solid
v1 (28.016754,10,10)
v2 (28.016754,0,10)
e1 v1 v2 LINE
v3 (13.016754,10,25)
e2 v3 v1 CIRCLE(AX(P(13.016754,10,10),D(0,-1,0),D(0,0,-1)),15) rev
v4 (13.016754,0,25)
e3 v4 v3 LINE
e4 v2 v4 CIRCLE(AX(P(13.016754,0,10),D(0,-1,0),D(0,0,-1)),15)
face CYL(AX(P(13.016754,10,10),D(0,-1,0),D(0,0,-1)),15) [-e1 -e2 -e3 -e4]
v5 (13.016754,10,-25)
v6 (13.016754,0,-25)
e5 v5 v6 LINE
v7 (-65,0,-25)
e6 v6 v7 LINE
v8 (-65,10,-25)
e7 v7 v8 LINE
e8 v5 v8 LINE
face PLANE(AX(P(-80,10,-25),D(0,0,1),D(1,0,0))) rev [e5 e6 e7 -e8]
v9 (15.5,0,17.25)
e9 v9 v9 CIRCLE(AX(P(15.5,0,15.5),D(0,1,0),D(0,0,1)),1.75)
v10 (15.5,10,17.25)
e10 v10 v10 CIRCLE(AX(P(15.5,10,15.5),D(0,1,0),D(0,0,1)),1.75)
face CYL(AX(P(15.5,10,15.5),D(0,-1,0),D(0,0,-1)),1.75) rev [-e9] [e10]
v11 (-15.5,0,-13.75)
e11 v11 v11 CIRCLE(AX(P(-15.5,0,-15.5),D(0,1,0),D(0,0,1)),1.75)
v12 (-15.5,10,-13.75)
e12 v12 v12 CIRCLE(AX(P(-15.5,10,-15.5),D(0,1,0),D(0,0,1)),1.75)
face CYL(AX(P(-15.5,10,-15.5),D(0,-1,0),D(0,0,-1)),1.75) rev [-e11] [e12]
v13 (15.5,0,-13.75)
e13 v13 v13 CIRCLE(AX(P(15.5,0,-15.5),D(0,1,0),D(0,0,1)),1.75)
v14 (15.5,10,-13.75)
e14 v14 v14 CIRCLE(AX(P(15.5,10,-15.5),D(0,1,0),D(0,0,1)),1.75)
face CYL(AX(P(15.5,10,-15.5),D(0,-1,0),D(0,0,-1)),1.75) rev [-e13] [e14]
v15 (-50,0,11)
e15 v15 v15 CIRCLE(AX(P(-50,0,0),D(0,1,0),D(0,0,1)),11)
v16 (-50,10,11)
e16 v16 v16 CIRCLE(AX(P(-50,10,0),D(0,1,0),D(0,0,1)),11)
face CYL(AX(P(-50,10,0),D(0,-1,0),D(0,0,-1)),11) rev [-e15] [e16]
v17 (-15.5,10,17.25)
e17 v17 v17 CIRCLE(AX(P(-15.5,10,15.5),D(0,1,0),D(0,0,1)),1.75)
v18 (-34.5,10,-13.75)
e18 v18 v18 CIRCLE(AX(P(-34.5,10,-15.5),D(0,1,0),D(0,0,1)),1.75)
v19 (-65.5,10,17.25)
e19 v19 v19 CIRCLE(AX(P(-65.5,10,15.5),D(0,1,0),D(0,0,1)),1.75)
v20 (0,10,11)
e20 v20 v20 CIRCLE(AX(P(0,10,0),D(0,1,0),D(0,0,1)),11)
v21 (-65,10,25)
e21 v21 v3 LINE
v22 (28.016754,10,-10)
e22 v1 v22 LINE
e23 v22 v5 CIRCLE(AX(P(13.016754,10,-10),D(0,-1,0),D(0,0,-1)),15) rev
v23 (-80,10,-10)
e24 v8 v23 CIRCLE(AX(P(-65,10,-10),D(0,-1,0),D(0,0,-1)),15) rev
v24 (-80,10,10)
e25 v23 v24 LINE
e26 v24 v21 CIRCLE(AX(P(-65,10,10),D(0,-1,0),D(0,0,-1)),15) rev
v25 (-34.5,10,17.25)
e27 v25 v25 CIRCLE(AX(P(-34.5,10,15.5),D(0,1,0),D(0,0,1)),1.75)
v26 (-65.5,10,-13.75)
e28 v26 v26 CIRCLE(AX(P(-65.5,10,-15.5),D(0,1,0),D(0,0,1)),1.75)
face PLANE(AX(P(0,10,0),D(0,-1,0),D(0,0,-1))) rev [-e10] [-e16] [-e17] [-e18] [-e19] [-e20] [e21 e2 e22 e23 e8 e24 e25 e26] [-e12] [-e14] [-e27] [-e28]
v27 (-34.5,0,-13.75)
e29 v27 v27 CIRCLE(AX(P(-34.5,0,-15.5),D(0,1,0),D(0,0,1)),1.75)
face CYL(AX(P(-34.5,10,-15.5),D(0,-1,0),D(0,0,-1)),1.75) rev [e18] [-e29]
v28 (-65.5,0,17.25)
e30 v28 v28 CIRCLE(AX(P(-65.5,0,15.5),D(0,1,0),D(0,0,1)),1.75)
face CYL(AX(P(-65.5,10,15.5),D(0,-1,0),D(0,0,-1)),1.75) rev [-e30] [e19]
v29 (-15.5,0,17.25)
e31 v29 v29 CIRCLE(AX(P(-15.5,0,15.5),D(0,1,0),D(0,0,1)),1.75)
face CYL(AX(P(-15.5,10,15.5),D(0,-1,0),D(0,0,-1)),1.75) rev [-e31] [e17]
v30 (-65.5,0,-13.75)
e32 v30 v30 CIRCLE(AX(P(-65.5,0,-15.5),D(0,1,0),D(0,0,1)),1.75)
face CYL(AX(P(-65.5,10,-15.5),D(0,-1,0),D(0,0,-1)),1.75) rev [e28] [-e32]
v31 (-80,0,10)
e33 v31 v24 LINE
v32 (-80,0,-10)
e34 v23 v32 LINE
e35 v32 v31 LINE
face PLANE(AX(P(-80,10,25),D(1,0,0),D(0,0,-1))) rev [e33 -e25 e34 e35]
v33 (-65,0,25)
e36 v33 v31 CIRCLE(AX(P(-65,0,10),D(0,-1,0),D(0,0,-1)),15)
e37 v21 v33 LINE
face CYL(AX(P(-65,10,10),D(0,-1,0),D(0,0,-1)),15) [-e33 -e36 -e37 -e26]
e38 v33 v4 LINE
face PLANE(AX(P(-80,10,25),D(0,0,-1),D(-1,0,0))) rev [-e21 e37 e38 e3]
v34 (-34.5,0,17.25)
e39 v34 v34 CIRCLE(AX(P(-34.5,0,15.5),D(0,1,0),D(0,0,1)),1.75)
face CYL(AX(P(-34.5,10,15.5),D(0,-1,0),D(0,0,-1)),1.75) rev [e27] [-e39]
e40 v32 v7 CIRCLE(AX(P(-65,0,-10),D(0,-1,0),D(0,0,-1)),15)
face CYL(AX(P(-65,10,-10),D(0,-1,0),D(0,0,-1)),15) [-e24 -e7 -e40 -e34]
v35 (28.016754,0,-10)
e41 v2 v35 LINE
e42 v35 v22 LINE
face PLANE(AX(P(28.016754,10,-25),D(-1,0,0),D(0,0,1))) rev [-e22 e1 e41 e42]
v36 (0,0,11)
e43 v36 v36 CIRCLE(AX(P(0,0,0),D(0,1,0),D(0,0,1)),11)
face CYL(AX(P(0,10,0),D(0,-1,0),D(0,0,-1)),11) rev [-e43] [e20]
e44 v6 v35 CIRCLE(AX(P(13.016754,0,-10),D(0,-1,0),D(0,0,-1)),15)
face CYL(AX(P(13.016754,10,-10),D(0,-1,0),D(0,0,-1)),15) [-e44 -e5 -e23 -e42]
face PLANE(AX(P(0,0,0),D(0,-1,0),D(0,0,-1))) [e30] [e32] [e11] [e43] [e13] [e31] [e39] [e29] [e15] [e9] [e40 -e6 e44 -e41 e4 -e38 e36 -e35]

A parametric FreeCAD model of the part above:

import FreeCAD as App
import Part
import Sketcher
Q = App.Units.Quantity


def edges_at(feature, points):
    """Names of the edges that pass closest to the given points."""
    edges = feature.Shape.Edges
    near = lambda p: min(range(len(edges)), key=lambda i: edges[i].distToShape(Part.Vertex(*p))[0])
    return sorted({f"Edge{near(p) + 1}" for p in points})

doc = App.newDocument("Part")
body = doc.addObject("PartDesign::Body", "Body")

# Sketch on XZ plane
sketch1 = body.newObject("Sketcher::SketchObject", "Sketch")
sketch1.AttachmentSupport = (doc.getObject("XZ_Plane"), [""])
sketch1.MapMode = "FlatFace"
sketch1.addGeometry([
    Part.LineSegment(App.Vector(-80, -25, 0), App.Vector(-80, 25, 0)),  # 0
    Part.LineSegment(App.Vector(-80, 25, 0), App.Vector(28, 25, 0)),  # 1
    Part.LineSegment(App.Vector(28, 25, 0), App.Vector(28, -25, 0)),  # 2
    Part.LineSegment(App.Vector(28, -25, 0), App.Vector(-80, -25, 0)),  # 3
    Part.Circle(App.Vector(-65.5, 15.5, 0), App.Vector(0, 0, 1), 1.8),  # 4
    Part.Circle(App.Vector(-34.5, 15.5, 0), App.Vector(0, 0, 1), 1.8),  # 5
    Part.Circle(App.Vector(-15.5, 15.5, 0), App.Vector(0, 0, 1), 1.8),  # 6
    Part.Circle(App.Vector(15.5, 15.5, 0), App.Vector(0, 0, 1), 1.8),  # 7
    Part.Circle(App.Vector(-50, 0, 0), App.Vector(0, 0, 1), 11),  # 8
    Part.Circle(App.Vector(-65.5, -15.5, 0), App.Vector(0, 0, 1), 1.8),  # 9
    Part.Circle(App.Vector(-34.5, -15.5, 0), App.Vector(0, 0, 1), 1.8),  # 10
    Part.Circle(App.Vector(0, 0, 0), App.Vector(0, 0, 1), 11),  # 11
    Part.Circle(App.Vector(-15.5, -15.5, 0), App.Vector(0, 0, 1), 1.8),  # 12
    Part.Circle(App.Vector(15.5, -15.5, 0), App.Vector(0, 0, 1), 1.8),  # 13
], False)
sketch1.addConstraint([
    Sketcher.Constraint("Coincident", 0, 2, 1, 1),
    Sketcher.Constraint("Coincident", 1, 2, 2, 1),
    Sketcher.Constraint("Coincident", 2, 2, 3, 1),
    Sketcher.Constraint("Coincident", 3, 2, 0, 1),
    Sketcher.Constraint("Vertical", 0),
    Sketcher.Constraint("Horizontal", 1),
    Sketcher.Constraint("Vertical", 2),
    Sketcher.Constraint("Horizontal", 3),
    Sketcher.Constraint("Coincident", 11, 3, -1, 1),
    Sketcher.Constraint("Equal", 4, 5),
    Sketcher.Constraint("Equal", 5, 6),
    Sketcher.Constraint("Equal", 6, 7),
    Sketcher.Constraint("Equal", 7, 9),
    Sketcher.Constraint("Equal", 9, 10),
    Sketcher.Constraint("Equal", 8, 11),
    Sketcher.Constraint("Equal", 10, 12),
    Sketcher.Constraint("Equal", 12, 13),
    Sketcher.Constraint("Symmetric", 7, 3, 12, 3, -1, 1),
    Sketcher.Constraint("Symmetric", 6, 3, 13, 3, -1, 1),
    Sketcher.Constraint("Symmetric", 6, 3, 7, 3, -2),
    Sketcher.Constraint("Symmetric", 4, 3, 9, 3, -1),
    Sketcher.Constraint("Symmetric", 5, 3, 10, 3, -1),
    Sketcher.Constraint("PointOnObject", 8, 3, -1),
    Sketcher.Constraint("Horizontal", 4, 3, 5, 3),
    Sketcher.Constraint("Horizontal", 5, 3, 6, 3),
    Sketcher.Constraint("Diameter", 8, Q("22 mm")),
    Sketcher.Constraint("Diameter", 4, Q("3.5 mm")),
    Sketcher.Constraint("DistanceY", 0, 1, 0, 2, Q("50 mm")),
    Sketcher.Constraint("DistanceX", 8, 3, -1, 1, Q("50 mm")),
    Sketcher.Constraint("DistanceX", 0, 2, -1, 1, Q("80 mm")),
    Sketcher.Constraint("DistanceY", -1, 1, 0, 2, Q("25 mm")),
    Sketcher.Constraint("DistanceX", 4, 3, 5, 3, Q("31 mm")),
    Sketcher.Constraint("DistanceX", 5, 3, 6, 3, Q("19 mm")),
    Sketcher.Constraint("DistanceX", 6, 3, 7, 3, Q("31 mm")),
    Sketcher.Constraint("DistanceY", 9, 3, 4, 3, Q("31 mm")),
    Sketcher.Constraint("DistanceX", 1, 1, 1, 2, Q("108.016754 mm")),
])
pad1 = body.newObject("PartDesign::Pad", "Pad")
pad1.Profile = sketch1
pad1.Length = 10
pad1.Reversed = True
doc.recompute()

fillet = body.newObject("PartDesign::Fillet", "Fillet")
fillet.Base = (pad1, edges_at(pad1, [
    (-80, 5, -25),
    (28.017, 5, -25),
    (28.017, 5, 25),
    (-80, 5, 25),
]))
fillet.Radius = 15

doc.recompute()
